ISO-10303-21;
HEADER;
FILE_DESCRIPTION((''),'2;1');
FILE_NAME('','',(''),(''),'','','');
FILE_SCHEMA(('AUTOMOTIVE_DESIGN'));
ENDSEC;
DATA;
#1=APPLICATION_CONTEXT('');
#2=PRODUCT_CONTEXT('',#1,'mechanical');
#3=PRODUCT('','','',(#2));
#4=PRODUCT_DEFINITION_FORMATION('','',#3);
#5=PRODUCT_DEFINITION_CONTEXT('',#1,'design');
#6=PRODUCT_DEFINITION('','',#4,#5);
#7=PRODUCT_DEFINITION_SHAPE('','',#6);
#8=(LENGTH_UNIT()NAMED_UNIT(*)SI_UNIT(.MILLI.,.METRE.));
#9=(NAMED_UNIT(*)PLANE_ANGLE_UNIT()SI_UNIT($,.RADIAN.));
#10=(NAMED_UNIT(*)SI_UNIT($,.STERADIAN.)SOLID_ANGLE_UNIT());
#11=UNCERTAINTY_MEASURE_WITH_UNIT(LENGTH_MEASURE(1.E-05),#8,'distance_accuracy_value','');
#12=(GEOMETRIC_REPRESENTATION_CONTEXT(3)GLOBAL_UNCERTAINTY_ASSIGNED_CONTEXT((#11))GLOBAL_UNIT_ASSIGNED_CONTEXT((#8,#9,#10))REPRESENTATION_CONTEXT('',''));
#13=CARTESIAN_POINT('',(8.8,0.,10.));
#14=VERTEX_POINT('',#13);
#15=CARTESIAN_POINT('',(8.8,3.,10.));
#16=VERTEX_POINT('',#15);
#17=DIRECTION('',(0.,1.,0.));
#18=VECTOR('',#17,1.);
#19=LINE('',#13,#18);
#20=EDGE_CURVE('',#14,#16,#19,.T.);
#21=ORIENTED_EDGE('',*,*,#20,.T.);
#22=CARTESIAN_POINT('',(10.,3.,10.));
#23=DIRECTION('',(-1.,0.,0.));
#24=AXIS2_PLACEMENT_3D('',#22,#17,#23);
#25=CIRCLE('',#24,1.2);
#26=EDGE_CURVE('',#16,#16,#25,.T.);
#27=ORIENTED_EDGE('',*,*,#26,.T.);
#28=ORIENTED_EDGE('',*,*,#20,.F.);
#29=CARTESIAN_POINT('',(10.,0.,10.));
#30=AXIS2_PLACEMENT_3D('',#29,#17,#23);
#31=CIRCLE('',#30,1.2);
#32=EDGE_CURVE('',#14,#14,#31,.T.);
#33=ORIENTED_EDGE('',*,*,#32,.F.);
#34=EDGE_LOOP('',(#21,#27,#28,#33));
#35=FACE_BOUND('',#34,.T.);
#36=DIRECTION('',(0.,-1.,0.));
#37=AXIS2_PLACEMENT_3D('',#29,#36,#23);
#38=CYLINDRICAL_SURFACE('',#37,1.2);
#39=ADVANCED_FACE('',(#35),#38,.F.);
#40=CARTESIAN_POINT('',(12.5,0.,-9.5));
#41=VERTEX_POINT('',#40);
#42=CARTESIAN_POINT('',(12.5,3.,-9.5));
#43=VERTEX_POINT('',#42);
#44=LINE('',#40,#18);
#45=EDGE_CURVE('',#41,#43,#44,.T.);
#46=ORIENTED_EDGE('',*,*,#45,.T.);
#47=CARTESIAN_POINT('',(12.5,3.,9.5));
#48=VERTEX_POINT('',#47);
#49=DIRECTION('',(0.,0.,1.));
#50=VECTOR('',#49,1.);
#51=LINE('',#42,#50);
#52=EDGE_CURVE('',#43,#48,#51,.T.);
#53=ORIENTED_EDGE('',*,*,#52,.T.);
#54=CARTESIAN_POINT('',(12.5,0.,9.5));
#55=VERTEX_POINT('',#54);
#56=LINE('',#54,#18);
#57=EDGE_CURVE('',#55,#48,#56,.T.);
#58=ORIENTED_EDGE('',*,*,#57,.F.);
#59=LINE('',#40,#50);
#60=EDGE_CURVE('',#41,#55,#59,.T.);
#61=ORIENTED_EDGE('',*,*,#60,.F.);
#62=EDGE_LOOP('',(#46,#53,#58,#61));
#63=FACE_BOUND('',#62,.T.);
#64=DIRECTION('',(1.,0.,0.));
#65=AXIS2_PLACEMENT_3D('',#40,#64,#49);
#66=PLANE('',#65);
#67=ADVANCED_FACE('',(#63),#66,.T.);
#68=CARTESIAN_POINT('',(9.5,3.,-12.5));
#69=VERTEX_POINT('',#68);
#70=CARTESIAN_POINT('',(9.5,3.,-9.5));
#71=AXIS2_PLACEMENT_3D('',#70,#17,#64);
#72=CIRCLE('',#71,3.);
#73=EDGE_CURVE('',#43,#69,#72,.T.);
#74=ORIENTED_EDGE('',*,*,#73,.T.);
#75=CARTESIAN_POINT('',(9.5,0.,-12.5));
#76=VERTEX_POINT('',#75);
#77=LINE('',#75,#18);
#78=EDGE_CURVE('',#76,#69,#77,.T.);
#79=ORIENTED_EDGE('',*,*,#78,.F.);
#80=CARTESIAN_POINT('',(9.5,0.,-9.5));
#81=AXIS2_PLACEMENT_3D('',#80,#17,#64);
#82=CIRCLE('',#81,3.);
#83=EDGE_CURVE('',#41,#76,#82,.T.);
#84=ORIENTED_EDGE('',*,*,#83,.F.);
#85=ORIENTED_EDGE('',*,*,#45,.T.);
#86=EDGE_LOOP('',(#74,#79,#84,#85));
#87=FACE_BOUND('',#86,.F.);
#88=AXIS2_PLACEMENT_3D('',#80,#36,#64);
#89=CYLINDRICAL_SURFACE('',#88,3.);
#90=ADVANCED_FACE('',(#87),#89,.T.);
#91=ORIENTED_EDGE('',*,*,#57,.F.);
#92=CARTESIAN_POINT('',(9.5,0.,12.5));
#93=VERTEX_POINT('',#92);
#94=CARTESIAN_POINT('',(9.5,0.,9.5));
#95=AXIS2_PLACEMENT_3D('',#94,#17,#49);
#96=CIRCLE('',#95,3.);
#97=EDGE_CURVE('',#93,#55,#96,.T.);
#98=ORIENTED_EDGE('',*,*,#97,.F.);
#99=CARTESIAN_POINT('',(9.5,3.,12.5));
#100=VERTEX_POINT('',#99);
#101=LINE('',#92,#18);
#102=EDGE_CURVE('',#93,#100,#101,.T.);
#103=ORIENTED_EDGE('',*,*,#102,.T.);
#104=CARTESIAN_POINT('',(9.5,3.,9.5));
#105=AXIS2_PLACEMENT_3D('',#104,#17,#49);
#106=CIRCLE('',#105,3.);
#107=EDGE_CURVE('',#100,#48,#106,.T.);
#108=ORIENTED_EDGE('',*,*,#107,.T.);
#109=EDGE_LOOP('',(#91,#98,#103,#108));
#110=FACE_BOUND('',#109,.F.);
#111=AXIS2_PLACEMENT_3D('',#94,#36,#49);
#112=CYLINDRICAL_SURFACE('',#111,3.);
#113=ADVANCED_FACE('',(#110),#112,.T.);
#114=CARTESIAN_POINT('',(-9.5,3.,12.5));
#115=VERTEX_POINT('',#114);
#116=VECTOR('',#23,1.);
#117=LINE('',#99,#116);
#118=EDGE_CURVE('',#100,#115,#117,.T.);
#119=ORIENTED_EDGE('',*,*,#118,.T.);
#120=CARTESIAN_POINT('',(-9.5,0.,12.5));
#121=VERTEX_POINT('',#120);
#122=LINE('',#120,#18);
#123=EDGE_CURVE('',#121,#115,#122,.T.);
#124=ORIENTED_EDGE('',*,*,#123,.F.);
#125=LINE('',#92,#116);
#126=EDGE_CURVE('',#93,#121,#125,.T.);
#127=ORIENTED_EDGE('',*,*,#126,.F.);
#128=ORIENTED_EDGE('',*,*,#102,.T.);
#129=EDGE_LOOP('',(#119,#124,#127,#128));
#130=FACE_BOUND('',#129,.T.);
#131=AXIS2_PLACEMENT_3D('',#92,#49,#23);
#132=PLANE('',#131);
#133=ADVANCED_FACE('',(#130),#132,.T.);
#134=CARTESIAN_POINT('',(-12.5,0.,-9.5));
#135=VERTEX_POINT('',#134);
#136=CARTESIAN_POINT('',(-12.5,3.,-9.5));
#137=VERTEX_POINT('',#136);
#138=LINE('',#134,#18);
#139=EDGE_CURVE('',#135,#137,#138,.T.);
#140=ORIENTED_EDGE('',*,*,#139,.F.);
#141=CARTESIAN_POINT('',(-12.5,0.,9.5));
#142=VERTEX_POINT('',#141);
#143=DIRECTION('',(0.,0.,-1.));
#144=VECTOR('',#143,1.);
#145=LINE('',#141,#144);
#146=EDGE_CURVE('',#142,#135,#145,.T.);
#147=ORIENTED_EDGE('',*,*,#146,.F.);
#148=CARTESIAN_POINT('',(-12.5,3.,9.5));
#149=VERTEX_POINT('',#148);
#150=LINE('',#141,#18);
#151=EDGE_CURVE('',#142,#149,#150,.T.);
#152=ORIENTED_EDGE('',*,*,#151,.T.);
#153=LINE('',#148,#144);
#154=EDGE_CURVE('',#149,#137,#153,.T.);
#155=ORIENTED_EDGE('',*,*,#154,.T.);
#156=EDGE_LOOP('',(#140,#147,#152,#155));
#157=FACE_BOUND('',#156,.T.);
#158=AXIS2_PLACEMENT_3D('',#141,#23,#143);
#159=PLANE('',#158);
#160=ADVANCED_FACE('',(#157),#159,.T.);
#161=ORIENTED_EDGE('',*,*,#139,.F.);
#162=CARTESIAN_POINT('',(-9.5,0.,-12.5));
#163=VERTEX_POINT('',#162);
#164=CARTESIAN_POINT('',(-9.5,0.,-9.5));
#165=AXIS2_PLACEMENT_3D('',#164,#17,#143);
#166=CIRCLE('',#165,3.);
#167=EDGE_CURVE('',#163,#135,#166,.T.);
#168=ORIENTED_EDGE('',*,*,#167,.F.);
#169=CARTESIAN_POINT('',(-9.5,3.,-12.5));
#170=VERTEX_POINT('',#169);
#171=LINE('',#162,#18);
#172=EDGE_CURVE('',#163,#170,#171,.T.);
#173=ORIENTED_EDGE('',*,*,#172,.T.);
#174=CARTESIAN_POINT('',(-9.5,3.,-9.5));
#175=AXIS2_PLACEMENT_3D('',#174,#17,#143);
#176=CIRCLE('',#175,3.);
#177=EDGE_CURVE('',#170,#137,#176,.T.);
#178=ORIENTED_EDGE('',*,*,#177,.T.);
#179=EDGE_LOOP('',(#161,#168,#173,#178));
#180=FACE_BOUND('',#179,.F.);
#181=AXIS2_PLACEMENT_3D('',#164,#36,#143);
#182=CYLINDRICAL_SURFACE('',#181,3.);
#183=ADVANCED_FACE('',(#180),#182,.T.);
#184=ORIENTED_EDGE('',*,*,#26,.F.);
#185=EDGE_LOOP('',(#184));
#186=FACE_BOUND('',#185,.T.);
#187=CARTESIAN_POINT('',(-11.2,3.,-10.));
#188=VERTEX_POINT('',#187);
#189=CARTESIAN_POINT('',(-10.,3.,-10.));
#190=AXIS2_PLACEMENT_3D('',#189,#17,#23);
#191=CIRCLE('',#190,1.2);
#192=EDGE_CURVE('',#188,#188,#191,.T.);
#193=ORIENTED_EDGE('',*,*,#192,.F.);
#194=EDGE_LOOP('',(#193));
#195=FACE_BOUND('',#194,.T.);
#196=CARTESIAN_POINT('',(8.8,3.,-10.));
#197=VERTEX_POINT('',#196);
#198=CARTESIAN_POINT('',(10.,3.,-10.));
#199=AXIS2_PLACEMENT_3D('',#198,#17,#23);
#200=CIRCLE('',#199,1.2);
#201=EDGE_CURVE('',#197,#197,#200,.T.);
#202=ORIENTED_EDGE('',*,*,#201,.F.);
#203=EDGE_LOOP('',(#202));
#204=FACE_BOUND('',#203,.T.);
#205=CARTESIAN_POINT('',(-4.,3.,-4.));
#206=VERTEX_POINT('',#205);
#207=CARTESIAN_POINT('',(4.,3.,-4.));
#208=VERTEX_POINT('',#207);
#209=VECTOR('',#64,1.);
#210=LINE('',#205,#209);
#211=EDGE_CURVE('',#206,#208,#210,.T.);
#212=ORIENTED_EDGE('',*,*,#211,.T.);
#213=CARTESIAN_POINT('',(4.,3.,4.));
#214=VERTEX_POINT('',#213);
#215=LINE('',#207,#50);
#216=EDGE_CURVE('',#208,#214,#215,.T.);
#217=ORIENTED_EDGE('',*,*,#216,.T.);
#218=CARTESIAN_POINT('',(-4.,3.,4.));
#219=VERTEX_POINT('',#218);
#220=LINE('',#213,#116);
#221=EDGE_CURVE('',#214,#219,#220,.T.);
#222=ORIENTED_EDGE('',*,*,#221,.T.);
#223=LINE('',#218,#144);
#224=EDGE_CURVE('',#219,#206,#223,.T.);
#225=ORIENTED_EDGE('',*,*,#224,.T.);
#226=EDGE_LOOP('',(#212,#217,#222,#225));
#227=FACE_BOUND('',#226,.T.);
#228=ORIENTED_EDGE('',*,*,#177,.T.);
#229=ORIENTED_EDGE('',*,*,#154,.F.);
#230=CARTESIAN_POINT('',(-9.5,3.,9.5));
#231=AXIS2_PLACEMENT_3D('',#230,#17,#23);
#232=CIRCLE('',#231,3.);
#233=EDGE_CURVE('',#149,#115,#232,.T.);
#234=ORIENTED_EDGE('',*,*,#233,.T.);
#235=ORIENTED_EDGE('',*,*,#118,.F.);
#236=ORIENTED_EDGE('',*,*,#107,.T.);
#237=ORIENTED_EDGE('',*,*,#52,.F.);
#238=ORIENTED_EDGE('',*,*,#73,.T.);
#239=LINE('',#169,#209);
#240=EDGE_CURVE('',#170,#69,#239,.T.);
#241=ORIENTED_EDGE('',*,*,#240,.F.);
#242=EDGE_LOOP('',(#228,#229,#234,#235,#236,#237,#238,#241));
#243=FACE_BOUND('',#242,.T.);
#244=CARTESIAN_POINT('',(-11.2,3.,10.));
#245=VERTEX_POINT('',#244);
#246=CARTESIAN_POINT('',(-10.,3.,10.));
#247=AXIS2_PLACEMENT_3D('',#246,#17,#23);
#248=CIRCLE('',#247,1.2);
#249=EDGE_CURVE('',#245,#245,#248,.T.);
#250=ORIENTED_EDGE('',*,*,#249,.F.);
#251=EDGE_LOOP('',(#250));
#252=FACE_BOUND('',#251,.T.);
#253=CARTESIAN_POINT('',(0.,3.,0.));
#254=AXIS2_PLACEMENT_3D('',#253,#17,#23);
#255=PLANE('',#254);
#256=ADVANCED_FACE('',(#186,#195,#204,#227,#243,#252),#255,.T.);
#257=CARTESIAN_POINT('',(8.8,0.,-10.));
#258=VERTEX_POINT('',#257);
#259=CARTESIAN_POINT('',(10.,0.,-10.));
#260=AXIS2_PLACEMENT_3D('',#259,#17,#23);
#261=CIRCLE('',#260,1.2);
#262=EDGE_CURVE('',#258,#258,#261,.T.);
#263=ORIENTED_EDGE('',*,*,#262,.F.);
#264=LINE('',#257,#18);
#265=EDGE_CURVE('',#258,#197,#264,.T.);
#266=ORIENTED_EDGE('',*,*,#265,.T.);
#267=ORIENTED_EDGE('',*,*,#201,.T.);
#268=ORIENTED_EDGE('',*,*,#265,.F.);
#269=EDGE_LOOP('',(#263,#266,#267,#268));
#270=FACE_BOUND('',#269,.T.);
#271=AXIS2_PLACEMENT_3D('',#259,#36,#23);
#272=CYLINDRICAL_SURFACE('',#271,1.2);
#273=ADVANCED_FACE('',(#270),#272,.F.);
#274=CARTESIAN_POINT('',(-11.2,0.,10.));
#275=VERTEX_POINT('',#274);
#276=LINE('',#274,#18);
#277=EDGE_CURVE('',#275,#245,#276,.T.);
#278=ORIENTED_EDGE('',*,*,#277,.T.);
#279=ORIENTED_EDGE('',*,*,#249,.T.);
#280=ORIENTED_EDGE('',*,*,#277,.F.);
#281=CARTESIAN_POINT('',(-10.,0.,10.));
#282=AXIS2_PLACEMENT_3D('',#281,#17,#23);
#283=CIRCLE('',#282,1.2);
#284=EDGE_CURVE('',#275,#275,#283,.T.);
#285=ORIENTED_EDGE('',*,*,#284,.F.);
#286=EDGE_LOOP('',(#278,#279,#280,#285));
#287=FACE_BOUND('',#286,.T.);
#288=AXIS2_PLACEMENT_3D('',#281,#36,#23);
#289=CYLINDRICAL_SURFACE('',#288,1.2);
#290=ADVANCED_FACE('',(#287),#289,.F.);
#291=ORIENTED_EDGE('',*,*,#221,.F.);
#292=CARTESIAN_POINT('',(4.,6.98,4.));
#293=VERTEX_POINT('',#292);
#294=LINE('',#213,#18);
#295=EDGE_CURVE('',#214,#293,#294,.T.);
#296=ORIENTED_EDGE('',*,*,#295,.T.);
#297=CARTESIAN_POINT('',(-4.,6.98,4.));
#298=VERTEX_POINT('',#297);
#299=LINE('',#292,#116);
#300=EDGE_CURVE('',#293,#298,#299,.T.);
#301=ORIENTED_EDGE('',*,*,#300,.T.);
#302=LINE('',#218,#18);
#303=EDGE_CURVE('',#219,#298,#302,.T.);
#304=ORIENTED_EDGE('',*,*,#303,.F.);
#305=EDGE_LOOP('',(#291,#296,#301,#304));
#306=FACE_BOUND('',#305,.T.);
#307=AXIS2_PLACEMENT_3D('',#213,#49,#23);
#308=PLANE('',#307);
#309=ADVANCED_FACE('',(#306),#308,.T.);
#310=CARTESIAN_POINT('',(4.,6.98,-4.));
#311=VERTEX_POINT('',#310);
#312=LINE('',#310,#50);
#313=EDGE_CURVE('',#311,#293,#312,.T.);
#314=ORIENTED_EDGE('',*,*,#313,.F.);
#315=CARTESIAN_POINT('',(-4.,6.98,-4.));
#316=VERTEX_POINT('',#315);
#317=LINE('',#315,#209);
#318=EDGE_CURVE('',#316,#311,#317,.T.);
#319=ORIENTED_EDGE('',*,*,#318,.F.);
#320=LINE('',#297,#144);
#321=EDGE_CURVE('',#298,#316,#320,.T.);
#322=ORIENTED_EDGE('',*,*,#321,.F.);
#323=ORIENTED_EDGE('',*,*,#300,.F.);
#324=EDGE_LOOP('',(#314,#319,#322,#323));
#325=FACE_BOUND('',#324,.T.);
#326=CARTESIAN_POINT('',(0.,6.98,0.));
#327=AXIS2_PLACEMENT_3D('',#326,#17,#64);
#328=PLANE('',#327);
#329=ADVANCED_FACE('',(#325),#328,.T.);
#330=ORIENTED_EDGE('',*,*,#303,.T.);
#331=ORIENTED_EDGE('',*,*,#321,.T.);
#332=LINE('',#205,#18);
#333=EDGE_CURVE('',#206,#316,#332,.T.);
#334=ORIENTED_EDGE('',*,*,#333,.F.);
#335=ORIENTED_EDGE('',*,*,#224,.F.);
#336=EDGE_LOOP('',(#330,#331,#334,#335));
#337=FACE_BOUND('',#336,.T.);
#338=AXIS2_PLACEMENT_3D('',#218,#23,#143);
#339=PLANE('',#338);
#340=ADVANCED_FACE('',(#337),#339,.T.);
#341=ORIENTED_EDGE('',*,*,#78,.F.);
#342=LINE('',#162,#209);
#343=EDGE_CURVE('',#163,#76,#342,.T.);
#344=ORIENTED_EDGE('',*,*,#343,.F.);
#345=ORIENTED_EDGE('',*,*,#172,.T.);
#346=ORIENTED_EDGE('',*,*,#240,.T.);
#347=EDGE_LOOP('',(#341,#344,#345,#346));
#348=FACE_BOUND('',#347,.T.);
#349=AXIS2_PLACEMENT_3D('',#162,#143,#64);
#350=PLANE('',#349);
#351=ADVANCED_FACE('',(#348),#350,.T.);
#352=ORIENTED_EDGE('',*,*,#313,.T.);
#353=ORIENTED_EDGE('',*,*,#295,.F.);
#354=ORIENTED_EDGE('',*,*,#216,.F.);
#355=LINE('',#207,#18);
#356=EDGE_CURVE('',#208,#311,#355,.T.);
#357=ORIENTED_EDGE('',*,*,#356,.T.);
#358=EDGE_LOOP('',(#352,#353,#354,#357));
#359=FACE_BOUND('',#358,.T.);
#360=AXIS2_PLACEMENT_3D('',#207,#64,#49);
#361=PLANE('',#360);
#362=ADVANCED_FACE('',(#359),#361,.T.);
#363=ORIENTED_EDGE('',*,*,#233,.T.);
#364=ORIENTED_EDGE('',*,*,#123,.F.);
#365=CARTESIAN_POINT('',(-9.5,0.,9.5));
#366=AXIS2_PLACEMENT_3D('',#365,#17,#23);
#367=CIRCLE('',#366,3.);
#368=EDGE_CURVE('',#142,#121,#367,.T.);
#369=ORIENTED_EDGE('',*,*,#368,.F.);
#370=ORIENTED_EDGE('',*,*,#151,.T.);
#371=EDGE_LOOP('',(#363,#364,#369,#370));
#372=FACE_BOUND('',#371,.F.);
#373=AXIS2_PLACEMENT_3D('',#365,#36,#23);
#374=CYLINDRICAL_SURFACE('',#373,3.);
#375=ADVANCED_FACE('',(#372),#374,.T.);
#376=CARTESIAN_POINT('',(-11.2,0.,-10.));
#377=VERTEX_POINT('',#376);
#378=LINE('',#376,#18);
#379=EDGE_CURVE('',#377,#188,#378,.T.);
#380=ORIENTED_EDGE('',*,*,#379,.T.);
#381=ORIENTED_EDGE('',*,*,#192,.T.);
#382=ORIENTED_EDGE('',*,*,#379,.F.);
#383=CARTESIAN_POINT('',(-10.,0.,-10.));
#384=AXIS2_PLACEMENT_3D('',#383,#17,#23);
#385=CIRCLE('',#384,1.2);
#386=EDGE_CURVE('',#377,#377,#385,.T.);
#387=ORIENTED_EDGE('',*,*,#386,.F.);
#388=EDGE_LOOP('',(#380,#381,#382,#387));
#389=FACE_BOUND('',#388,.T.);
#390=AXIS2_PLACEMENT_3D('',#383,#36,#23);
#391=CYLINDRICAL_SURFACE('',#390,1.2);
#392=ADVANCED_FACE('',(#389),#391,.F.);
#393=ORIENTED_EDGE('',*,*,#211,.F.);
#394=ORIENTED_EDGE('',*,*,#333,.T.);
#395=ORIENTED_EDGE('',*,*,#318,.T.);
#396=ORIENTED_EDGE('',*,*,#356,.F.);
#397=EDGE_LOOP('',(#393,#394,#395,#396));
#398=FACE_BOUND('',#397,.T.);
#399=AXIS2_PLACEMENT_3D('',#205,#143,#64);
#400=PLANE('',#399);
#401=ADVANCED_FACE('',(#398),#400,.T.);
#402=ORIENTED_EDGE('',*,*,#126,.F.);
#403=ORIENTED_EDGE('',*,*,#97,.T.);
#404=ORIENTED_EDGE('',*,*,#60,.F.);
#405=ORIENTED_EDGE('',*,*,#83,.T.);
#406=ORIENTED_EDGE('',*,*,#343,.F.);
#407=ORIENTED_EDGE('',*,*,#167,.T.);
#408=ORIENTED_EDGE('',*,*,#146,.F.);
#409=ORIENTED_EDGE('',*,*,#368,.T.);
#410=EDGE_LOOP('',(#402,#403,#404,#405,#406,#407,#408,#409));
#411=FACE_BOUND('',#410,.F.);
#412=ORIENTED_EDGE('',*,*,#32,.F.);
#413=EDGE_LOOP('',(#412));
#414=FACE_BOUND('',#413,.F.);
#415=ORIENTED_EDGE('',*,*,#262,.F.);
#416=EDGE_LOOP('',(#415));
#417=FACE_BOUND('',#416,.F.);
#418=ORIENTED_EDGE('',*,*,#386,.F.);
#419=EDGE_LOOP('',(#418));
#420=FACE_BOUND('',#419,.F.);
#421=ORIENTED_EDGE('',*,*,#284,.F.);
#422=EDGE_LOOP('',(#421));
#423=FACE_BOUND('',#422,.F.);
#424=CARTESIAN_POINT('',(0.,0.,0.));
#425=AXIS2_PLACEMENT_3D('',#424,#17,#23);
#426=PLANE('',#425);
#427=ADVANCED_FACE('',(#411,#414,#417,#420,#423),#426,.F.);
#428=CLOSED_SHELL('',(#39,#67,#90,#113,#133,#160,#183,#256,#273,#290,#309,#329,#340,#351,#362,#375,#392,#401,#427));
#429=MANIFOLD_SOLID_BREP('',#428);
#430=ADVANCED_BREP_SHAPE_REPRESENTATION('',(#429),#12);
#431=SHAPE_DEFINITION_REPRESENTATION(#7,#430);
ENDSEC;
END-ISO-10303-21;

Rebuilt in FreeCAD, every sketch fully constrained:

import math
import FreeCAD as App
import Part
import Sketcher

doc = App.newDocument("Part")
body = doc.addObject("PartDesign::Body", "Body")

# Sketch on XZ plane
sketch1 = body.newObject("Sketcher::SketchObject", "Sketch")
sketch1.AttachmentSupport = (doc.getObject("XZ_Plane"), [""])
sketch1.MapMode = "FlatFace"
sketch1.addGeometry(Part.LineSegment(App.Vector(-9.5, 12.5, 0), App.Vector(9.5, 12.5, 0)), False)
sketch1.addGeometry(Part.ArcOfCircle(Part.Circle(App.Vector(9.5, 9.5, 0), App.Vector(0, 0, 1), 3), math.radians(0), math.radians(90)), False)
sketch1.addGeometry(Part.LineSegment(App.Vector(12.5, 9.5, 0), App.Vector(12.5, -9.5, 0)), False)
sketch1.addGeometry(Part.ArcOfCircle(Part.Circle(App.Vector(9.5, -9.5, 0), App.Vector(0, 0, 1), 3), math.radians(-90), math.radians(0)), False)
sketch1.addGeometry(Part.LineSegment(App.Vector(9.5, -12.5, 0), App.Vector(-9.5, -12.5, 0)), False)
sketch1.addGeometry(Part.ArcOfCircle(Part.Circle(App.Vector(-9.5, -9.5, 0), App.Vector(0, 0, 1), 3), math.radians(180), math.radians(270)), False)
sketch1.addGeometry(Part.LineSegment(App.Vector(-12.5, -9.5, 0), App.Vector(-12.5, 9.5, 0)), False)
sketch1.addGeometry(Part.ArcOfCircle(Part.Circle(App.Vector(-9.5, 9.5, 0), App.Vector(0, 0, 1), 3), math.radians(90), math.radians(180)), False)
sketch1.addGeometry(Part.Circle(App.Vector(10, -10, 0), App.Vector(0, 0, 1), 1.2), False)
sketch1.addGeometry(Part.Circle(App.Vector(-10, -10, 0), App.Vector(0, 0, 1), 1.2), False)
sketch1.addGeometry(Part.Circle(App.Vector(10, 10, 0), App.Vector(0, 0, 1), 1.2), False)
sketch1.addGeometry(Part.Circle(App.Vector(-10, 10, 0), App.Vector(0, 0, 1), 1.2), False)
sketch1.addConstraint(Sketcher.Constraint("Tangent", 0, 2, 1, 2))
sketch1.addConstraint(Sketcher.Constraint("Tangent", 1, 1, 2, 1))
sketch1.addConstraint(Sketcher.Constraint("Tangent", 2, 2, 3, 2))
sketch1.addConstraint(Sketcher.Constraint("Tangent", 3, 1, 4, 1))
sketch1.addConstraint(Sketcher.Constraint("Tangent", 4, 2, 5, 2))
sketch1.addConstraint(Sketcher.Constraint("Tangent", 5, 1, 6, 1))
sketch1.addConstraint(Sketcher.Constraint("Tangent", 6, 2, 7, 2))
sketch1.addConstraint(Sketcher.Constraint("Tangent", 7, 1, 0, 1))
sketch1.addConstraint(Sketcher.Constraint("Horizontal", 0))
sketch1.addConstraint(Sketcher.Constraint("Vertical", 2))
sketch1.addConstraint(Sketcher.Constraint("Horizontal", 4))
sketch1.addConstraint(Sketcher.Constraint("Vertical", 6))
sketch1.addConstraint(Sketcher.Constraint("Equal", 1, 3))
sketch1.addConstraint(Sketcher.Constraint("Equal", 3, 5))
sketch1.addConstraint(Sketcher.Constraint("Equal", 5, 7))
sketch1.addConstraint(Sketcher.Constraint("Equal", 8, 9))
sketch1.addConstraint(Sketcher.Constraint("Equal", 9, 10))
sketch1.addConstraint(Sketcher.Constraint("Equal", 10, 11))
sketch1.addConstraint(Sketcher.Constraint("Symmetric", 1, 3, 5, 3, -1, 1))
sketch1.addConstraint(Sketcher.Constraint("Symmetric", 9, 3, 10, 3, -1, 1))
sketch1.addConstraint(Sketcher.Constraint("Symmetric", 8, 3, 11, 3, -1, 1))
sketch1.addConstraint(Sketcher.Constraint("Symmetric", 8, 3, 9, 3, -2))
sketch1.addConstraint(Sketcher.Constraint("Equal", 4, 2))
sketch1.addConstraint(Sketcher.Constraint("Radius", 1, 3.0))
sketch1.addConstraint(Sketcher.Constraint("Diameter", 8, 2.4))
sketch1.addConstraint(Sketcher.Constraint("DistanceX", 9, 3, 8, 3, 20.0))
sketch1.addConstraint(Sketcher.Constraint("DistanceY", 8, 3, 10, 3, 20.0))
sketch1.addConstraint(Sketcher.Constraint("DistanceX", 0, 1, 0, 2, 19.0))
pad1 = body.newObject("PartDesign::Pad", "Pad")
pad1.Profile = sketch1
pad1.Length = 3
pad1.Reversed = True

# Sketch on XZ plane
sketch2 = body.newObject("Sketcher::SketchObject", "Sketch001")
sketch2.AttachmentSupport = (doc.getObject("XZ_Plane"), [""])
sketch2.MapMode = "FlatFace"
sketch2.AttachmentOffset = App.Placement(App.Vector(0, 0, -3), App.Rotation())
sketch2.addGeometry(Part.LineSegment(App.Vector(-4, 4, 0), App.Vector(4, 4, 0)), False)
sketch2.addGeometry(Part.LineSegment(App.Vector(4, 4, 0), App.Vector(4, -4, 0)), False)
sketch2.addGeometry(Part.LineSegment(App.Vector(4, -4, 0), App.Vector(-4, -4, 0)), False)
sketch2.addGeometry(Part.LineSegment(App.Vector(-4, -4, 0), App.Vector(-4, 4, 0)), False)
sketch2.addConstraint(Sketcher.Constraint("Coincident", 0, 2, 1, 1))
sketch2.addConstraint(Sketcher.Constraint("Coincident", 1, 2, 2, 1))
sketch2.addConstraint(Sketcher.Constraint("Coincident", 2, 2, 3, 1))
sketch2.addConstraint(Sketcher.Constraint("Coincident", 3, 2, 0, 1))
sketch2.addConstraint(Sketcher.Constraint("Horizontal", 0))
sketch2.addConstraint(Sketcher.Constraint("Vertical", 1))
sketch2.addConstraint(Sketcher.Constraint("Horizontal", 2))
sketch2.addConstraint(Sketcher.Constraint("Vertical", 3))
sketch2.addConstraint(Sketcher.Constraint("Symmetric", 0, 2, 2, 2, -1, 1))
sketch2.addConstraint(Sketcher.Constraint("Equal", 2, 1))
sketch2.addConstraint(Sketcher.Constraint("DistanceX", 0, 1, 0, 2, 8.0))
pad2 = body.newObject("PartDesign::Pad", "Pad001")
pad2.Profile = sketch2
pad2.Length = 3.98
pad2.Reversed = True

doc.recompute()
